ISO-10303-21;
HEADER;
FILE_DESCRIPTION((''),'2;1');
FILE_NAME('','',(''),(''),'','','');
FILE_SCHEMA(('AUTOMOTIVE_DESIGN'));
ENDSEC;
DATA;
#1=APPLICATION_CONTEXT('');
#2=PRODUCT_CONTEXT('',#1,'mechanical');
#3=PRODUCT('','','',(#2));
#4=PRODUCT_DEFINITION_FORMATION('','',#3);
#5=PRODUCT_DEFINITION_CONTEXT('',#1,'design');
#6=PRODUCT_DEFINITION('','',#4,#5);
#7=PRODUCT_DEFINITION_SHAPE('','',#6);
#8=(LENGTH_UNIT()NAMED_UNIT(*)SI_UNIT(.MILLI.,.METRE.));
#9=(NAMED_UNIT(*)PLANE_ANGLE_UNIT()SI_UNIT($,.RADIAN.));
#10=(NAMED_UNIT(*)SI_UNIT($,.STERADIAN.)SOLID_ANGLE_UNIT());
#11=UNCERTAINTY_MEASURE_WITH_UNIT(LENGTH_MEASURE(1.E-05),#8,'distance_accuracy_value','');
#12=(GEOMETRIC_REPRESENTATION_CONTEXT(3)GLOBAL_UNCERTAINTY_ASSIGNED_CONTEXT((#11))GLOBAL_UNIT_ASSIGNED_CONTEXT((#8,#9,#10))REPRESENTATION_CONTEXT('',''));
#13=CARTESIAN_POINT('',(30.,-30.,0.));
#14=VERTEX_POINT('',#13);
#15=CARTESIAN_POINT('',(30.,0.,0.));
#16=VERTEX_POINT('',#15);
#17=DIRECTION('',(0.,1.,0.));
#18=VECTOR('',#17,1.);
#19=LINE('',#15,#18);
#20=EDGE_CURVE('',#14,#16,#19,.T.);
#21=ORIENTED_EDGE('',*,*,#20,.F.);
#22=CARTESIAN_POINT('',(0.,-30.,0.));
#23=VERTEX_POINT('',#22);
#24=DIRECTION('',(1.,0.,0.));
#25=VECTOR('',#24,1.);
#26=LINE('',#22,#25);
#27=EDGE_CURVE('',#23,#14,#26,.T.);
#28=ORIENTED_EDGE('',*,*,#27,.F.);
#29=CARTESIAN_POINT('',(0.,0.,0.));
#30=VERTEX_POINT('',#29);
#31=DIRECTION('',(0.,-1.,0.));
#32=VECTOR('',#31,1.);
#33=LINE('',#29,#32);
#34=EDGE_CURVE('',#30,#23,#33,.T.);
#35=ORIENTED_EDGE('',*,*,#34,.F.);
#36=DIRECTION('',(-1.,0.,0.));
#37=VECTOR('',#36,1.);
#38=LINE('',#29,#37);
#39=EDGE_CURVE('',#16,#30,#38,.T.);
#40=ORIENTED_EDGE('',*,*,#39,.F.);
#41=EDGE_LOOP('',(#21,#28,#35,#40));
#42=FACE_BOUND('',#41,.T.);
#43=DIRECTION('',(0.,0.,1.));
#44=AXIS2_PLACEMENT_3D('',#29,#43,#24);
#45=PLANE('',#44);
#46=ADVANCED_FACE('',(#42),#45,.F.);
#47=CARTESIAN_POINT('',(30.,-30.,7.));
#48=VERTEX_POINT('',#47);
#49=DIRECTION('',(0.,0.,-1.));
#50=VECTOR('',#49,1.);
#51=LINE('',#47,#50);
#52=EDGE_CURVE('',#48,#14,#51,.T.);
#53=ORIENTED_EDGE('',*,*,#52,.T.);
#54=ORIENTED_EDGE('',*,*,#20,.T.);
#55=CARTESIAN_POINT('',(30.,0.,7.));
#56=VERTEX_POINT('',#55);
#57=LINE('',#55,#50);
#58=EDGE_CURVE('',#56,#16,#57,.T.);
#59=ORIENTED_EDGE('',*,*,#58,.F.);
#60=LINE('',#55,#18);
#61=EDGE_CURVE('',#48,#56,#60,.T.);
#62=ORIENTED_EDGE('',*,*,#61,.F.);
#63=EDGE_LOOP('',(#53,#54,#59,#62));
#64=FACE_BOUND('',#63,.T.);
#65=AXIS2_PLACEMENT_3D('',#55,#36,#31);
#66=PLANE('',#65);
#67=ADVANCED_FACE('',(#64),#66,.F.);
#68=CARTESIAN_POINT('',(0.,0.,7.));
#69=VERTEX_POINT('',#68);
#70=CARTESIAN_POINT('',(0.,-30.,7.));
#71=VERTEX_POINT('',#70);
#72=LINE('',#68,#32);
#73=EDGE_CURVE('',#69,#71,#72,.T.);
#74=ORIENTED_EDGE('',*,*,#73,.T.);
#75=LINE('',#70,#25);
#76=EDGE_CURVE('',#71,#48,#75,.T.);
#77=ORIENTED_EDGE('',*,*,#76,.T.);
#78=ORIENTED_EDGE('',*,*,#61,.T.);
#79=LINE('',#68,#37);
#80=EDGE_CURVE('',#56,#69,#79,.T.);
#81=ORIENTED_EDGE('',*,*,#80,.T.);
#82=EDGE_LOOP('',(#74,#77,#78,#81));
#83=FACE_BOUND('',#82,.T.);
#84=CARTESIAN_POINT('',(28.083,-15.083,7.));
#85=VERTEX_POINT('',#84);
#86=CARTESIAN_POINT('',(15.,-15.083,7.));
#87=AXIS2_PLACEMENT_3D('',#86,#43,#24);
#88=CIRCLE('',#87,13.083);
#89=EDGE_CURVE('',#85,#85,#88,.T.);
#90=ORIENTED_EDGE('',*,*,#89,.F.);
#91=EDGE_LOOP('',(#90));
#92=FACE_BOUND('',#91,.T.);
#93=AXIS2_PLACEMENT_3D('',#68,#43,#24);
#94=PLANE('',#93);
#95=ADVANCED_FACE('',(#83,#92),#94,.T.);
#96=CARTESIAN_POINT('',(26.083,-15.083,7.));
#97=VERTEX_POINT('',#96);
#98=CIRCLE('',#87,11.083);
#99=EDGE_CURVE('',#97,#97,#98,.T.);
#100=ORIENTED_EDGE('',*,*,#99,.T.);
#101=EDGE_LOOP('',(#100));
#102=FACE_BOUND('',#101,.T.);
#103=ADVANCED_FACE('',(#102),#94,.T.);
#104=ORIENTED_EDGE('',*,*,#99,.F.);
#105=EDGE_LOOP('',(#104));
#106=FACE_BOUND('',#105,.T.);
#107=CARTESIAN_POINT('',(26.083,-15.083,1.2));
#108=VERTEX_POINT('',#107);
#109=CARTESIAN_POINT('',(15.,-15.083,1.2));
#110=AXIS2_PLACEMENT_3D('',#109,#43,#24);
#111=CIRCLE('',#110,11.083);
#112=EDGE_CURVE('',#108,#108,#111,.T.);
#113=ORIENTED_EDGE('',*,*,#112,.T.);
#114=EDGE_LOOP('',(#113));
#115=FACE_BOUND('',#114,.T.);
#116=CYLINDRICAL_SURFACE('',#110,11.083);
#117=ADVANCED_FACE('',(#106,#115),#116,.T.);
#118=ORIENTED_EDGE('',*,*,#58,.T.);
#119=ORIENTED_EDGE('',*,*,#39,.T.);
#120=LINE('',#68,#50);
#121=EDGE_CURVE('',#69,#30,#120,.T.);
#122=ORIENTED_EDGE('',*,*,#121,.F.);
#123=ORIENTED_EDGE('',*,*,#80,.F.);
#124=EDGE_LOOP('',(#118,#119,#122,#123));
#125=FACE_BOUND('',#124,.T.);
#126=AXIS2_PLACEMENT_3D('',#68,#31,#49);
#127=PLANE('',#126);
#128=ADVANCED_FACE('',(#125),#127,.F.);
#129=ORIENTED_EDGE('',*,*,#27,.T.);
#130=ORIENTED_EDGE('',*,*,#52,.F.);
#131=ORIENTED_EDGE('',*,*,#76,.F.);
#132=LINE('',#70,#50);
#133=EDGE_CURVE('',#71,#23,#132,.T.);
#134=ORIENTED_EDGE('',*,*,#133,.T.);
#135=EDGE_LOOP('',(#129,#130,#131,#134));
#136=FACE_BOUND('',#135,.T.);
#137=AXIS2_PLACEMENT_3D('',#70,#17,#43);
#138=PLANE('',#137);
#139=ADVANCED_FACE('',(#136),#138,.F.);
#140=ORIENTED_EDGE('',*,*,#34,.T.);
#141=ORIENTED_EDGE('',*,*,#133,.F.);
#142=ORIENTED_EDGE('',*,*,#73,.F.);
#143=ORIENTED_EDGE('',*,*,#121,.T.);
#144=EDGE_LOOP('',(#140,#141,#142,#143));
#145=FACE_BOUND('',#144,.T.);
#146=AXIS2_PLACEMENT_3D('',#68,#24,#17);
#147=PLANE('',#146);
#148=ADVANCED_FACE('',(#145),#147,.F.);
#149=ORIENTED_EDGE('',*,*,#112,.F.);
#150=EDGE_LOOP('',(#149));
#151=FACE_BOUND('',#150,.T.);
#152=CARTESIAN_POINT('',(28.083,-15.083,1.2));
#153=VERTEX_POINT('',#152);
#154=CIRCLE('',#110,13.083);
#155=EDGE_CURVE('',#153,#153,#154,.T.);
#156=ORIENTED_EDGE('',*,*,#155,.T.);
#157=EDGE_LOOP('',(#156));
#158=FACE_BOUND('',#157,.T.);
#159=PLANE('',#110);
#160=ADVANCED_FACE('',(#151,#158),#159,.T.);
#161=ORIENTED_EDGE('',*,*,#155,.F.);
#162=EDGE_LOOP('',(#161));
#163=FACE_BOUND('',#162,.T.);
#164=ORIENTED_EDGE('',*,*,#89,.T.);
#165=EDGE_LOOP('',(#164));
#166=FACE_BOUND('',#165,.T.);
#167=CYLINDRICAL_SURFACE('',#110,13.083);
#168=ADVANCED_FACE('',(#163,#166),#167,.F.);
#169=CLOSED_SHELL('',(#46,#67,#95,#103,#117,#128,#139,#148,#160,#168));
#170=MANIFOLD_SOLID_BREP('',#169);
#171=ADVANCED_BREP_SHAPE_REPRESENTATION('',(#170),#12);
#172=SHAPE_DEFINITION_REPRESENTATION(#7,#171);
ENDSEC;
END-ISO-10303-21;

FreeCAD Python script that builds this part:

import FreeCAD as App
import Part
import Sketcher
from FreeCAD import Vector
Q = App.Units.Quantity

doc = App.newDocument("Part")
params = doc.addObject("Spreadsheet::Sheet", "Params")
for row, (alias, value) in enumerate([
    ("sketch1_width", "30 mm"),
    ("pad1_length", "7 mm"),
    ("pocket1_length", "5.8 mm"),
], start=1):
    params.set(f"A{row}", alias)
    params.set(f"B{row}", "=" + value)
    params.setAlias(f"B{row}", alias)

body = doc.addObject("PartDesign::Body", "Body")

# Sketch on XY plane
sketch1 = doc.addObject("Sketcher::SketchObject", "Sketch")
body.addObject(sketch1)
sketch1.AttachmentSupport = (doc.XY_Plane, [""])
sketch1.MapMode = "FlatFace"
sketch1.addGeometry([
    Part.LineSegment(Vector(0, 0, 0), Vector(0, -30, 0)),
    Part.LineSegment(Vector(0, -30, 0), Vector(30, -30, 0)),
    Part.LineSegment(Vector(30, -30, 0), Vector(30, 0, 0)),
    Part.LineSegment(Vector(30, 0, 0), Vector(0, 0, 0)),
], False)
sketch1.addConstraint([
    Sketcher.Constraint("Coincident", 0, 2, 1, 1),
    Sketcher.Constraint("Coincident", 1, 2, 2, 1),
    Sketcher.Constraint("Coincident", 2, 2, 3, 1),
    Sketcher.Constraint("Coincident", 3, 2, 0, 1),
    Sketcher.Constraint("Vertical", 0),
    Sketcher.Constraint("Horizontal", 1),
    Sketcher.Constraint("Vertical", 2),
    Sketcher.Constraint("Horizontal", 3),
    Sketcher.Constraint("Coincident", 3, 2, -1, 1),
    Sketcher.Constraint("Equal", 3, 0),
    Sketcher.Constraint("DistanceX", 1, 1, 1, 2, Q("30 mm")),
])
sketch1.setExpression("Constraints[10]", "Params.sketch1_width")
pad1 = doc.addObject("PartDesign::Pad", "Pad")
body.addObject(pad1)
pad1.Profile = sketch1
pad1.setExpression("Length", "Params.pad1_length")

# Sketch on XY plane
sketch2 = doc.addObject("Sketcher::SketchObject", "Sketch001")
body.addObject(sketch2)
sketch2.AttachmentSupport = (doc.XY_Plane, [""])
sketch2.MapMode = "FlatFace"
sketch2.AttachmentOffset = App.Placement(Vector(0, 0, 7), App.Rotation())
sketch2.addGeometry([
    Part.Circle(Vector(15, -15, 0), Vector(0, 0, 1), 13),
    Part.Circle(Vector(15, -15, 0), Vector(0, 0, 1), 11),
], False)
sketch2.addConstraint([
    Sketcher.Constraint("Coincident", 1, 3, 0, 3),
    Sketcher.Constraint("Diameter", 0, Q("26.166 mm")),
    Sketcher.Constraint("Diameter", 1, Q("22.166 mm")),
    Sketcher.Constraint("DistanceX", -1, 1, 0, 3, Q("15 mm")),
    Sketcher.Constraint("DistanceY", 0, 3, -1, 1, Q("15.083 mm")),
])
pocket1 = doc.addObject("PartDesign::Pocket", "Pocket")
body.addObject(pocket1)
pocket1.Profile = sketch2
pocket1.setExpression("Length", "Params.pocket1_length")

doc.recompute()
